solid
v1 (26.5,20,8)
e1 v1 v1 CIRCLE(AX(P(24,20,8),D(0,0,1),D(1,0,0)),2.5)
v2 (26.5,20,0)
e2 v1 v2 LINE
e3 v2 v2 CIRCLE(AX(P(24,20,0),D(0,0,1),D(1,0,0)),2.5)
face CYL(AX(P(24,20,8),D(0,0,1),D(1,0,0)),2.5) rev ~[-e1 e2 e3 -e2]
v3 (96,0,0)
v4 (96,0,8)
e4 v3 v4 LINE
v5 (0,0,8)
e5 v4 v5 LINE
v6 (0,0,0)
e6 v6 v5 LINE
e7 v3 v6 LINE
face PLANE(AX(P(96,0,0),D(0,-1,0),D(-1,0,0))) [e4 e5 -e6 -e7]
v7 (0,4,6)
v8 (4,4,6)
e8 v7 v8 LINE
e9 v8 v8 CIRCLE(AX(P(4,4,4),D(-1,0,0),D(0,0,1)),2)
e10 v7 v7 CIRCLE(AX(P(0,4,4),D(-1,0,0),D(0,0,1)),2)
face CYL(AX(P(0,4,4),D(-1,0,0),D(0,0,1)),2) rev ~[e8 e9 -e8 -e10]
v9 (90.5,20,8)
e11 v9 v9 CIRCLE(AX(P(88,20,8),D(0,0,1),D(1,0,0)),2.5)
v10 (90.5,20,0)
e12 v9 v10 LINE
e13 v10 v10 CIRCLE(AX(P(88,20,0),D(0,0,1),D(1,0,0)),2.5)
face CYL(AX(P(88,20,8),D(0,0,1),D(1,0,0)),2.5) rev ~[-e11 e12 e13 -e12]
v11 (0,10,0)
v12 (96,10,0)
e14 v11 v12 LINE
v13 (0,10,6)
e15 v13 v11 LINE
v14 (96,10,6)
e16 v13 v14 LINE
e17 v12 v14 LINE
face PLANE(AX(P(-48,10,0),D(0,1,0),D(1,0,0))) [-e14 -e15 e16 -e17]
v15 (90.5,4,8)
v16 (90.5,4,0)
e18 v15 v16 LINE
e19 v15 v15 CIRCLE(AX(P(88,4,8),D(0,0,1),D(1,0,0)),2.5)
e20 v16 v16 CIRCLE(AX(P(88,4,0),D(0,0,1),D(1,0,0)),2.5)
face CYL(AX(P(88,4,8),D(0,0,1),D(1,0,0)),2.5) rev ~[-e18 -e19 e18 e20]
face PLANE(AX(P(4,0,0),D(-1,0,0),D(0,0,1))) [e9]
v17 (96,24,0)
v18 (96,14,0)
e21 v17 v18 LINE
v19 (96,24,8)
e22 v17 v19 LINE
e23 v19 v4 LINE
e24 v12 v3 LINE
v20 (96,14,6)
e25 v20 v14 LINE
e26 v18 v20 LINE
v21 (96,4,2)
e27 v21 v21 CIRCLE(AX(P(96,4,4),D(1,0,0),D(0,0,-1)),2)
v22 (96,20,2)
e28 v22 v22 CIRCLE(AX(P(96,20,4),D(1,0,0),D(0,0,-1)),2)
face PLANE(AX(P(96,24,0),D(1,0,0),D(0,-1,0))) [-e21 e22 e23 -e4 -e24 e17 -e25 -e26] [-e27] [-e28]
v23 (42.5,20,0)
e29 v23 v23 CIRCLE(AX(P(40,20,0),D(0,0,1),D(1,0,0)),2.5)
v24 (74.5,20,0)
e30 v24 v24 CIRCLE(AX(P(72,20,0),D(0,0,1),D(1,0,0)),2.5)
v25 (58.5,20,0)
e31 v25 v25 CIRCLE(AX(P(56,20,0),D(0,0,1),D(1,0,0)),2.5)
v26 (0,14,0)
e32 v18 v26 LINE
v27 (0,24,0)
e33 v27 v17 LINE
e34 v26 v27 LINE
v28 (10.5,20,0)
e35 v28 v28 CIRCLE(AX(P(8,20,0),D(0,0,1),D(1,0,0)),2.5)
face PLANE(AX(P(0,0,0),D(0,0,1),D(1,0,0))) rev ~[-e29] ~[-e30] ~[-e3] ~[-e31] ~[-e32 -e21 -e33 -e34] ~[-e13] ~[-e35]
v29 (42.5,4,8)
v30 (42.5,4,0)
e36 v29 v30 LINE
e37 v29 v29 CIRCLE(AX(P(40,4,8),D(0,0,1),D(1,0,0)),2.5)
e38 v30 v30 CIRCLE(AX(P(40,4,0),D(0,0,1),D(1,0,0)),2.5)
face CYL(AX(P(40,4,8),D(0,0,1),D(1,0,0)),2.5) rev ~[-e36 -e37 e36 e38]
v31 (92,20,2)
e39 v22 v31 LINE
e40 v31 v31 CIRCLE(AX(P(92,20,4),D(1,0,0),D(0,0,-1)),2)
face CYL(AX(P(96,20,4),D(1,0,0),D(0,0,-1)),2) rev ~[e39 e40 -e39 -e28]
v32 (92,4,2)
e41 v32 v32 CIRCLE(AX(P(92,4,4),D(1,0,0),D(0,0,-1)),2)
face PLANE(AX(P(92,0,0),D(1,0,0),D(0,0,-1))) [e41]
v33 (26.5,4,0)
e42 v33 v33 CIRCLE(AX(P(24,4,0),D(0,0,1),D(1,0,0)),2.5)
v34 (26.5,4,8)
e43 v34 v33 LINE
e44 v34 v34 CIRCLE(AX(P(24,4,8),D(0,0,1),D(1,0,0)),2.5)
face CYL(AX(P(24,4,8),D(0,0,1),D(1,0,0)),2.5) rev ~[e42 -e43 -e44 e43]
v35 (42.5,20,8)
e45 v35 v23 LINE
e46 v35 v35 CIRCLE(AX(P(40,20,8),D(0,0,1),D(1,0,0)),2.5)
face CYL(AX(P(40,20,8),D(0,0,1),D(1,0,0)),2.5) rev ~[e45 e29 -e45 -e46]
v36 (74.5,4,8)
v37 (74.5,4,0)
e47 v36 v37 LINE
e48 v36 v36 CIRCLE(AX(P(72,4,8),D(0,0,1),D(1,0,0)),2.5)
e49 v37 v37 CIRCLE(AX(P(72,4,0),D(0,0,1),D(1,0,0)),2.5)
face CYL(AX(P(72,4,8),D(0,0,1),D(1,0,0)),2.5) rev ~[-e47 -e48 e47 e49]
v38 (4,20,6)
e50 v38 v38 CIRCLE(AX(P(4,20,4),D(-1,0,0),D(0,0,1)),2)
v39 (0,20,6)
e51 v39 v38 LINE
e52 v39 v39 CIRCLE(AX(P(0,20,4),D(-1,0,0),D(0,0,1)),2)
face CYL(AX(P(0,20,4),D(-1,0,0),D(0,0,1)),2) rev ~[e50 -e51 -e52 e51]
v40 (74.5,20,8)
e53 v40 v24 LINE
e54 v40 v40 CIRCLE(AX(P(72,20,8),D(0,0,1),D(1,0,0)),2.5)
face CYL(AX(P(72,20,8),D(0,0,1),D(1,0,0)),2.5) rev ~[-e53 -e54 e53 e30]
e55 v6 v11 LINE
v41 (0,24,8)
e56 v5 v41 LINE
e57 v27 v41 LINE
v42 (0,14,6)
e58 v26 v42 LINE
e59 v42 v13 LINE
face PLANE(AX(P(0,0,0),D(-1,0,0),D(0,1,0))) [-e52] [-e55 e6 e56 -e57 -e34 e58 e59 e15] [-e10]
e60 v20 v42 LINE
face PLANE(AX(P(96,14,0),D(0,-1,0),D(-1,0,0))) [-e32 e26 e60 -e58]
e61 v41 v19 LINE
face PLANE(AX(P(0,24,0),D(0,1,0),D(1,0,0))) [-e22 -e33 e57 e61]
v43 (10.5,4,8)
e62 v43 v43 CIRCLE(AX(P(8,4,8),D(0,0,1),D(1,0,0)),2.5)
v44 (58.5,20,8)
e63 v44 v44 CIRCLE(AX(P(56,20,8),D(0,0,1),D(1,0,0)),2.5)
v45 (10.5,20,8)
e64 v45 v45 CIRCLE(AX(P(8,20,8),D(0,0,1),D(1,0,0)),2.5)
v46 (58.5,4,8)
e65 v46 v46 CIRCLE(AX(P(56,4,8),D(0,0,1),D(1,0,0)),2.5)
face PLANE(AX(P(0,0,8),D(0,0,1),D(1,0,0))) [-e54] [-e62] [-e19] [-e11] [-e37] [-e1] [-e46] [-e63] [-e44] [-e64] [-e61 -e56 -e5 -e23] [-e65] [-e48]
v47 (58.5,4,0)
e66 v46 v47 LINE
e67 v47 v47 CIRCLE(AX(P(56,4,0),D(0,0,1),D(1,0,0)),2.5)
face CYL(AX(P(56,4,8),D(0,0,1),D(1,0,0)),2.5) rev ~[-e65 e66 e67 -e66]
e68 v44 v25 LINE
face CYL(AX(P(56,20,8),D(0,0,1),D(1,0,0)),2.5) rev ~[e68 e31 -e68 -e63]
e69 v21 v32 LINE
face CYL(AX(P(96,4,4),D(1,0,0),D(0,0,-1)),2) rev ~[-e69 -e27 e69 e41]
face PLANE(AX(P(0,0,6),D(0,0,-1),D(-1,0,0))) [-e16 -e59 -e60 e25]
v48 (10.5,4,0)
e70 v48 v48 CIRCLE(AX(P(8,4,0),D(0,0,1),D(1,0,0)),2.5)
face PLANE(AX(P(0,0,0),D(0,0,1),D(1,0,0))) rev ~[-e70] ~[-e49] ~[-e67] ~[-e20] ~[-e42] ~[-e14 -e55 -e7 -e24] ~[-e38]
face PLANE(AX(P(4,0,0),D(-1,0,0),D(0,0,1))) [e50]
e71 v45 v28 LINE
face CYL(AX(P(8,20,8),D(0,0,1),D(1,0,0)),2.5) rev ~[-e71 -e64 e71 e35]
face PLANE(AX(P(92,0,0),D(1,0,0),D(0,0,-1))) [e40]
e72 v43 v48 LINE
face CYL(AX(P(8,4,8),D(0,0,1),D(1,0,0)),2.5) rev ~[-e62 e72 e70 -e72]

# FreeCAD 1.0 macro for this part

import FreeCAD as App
import Part
import Sketcher


def add_polygon(sketch, points):
    """Adds a closed chain of lines whose ends are joined by coincident constraints."""
    first, n = sketch.GeometryCount, len(points)
    for a, b in zip(points, points[1:] + points[:1]):
        sketch.addGeometry(Part.LineSegment(App.Vector(*a, 0), App.Vector(*b, 0)), False)
    for i in range(n):
        sketch.addConstraint(Sketcher.Constraint("Coincident", first + i, 2, first + (i + 1) % n, 1))

doc = App.newDocument("Part")
body = doc.addObject("PartDesign::Body", "Body")

sketch1 = doc.addObject("Sketcher::SketchObject", "Sketch")
body.addObject(sketch1)
sketch1.AttachmentSupport = (doc.XY_Plane, [""])
sketch1.MapMode = "FlatFace"
add_polygon(sketch1, [(0, 0), (96, 0), (96, 24), (0, 24)])
sketch1.addConstraint([
    Sketcher.Constraint("Horizontal", 0),
    Sketcher.Constraint("Vertical", 1),
    Sketcher.Constraint("Horizontal", 2),
    Sketcher.Constraint("Vertical", 3),
    Sketcher.Constraint("Coincident", 3, 2, -1, 1),
    Sketcher.Constraint("DistanceX", 0, 1, 0, 2, 96.0),
    Sketcher.Constraint("DistanceY", 1, 1, 1, 2, 24.0),
])
pad1 = doc.addObject("PartDesign::Pad", "Pad")
body.addObject(pad1)
pad1.Profile = sketch1
pad1.Length = 8

sketch2 = doc.addObject("Sketcher::SketchObject", "Sketch001")
body.addObject(sketch2)
sketch2.AttachmentSupport = (doc.XY_Plane, [""])
sketch2.MapMode = "FlatFace"
sketch2.AttachmentOffset = App.Placement(App.Vector(0, 0, 8), App.Rotation())
sketch2.addGeometry([
    Part.Circle(App.Vector(88, 20, 0), App.Vector(0, 0, 1), 2.5),
    Part.Circle(App.Vector(72, 20, 0), App.Vector(0, 0, 1), 2.5),
    Part.Circle(App.Vector(56, 20, 0), App.Vector(0, 0, 1), 2.5),
    Part.Circle(App.Vector(40, 20, 0), App.Vector(0, 0, 1), 2.5),
    Part.Circle(App.Vector(24, 20, 0), App.Vector(0, 0, 1), 2.5),
    Part.Circle(App.Vector(8, 20, 0), App.Vector(0, 0, 1), 2.5),
    Part.Circle(App.Vector(88, 4, 0), App.Vector(0, 0, 1), 2.5),
    Part.Circle(App.Vector(72, 4, 0), App.Vector(0, 0, 1), 2.5),
    Part.Circle(App.Vector(56, 4, 0), App.Vector(0, 0, 1), 2.5),
    Part.Circle(App.Vector(40, 4, 0), App.Vector(0, 0, 1), 2.5),
    Part.Circle(App.Vector(24, 4, 0), App.Vector(0, 0, 1), 2.5),
    Part.Circle(App.Vector(8, 4, 0), App.Vector(0, 0, 1), 2.5),
], False)
sketch2.addConstraint([
    Sketcher.Constraint("Equal", 0, 1),
    Sketcher.Constraint("Equal", 1, 2),
    Sketcher.Constraint("Equal", 2, 3),
    Sketcher.Constraint("Equal", 3, 4),
    Sketcher.Constraint("Equal", 4, 5),
    Sketcher.Constraint("Equal", 5, 6),
    Sketcher.Constraint("Equal", 6, 7),
    Sketcher.Constraint("Equal", 7, 8),
    Sketcher.Constraint("Equal", 8, 9),
    Sketcher.Constraint("Equal", 9, 10),
    Sketcher.Constraint("Equal", 10, 11),
    Sketcher.Constraint("Horizontal", 0, 3, 1, 3),
    Sketcher.Constraint("Horizontal", 1, 3, 2, 3),
    Sketcher.Constraint("Horizontal", 2, 3, 3, 3),
    Sketcher.Constraint("Horizontal", 3, 3, 4, 3),
    Sketcher.Constraint("Horizontal", 4, 3, 5, 3),
    Sketcher.Constraint("Horizontal", 6, 3, 7, 3),
    Sketcher.Constraint("Horizontal", 7, 3, 8, 3),
    Sketcher.Constraint("Horizontal", 8, 3, 9, 3),
    Sketcher.Constraint("Horizontal", 9, 3, 10, 3),
    Sketcher.Constraint("Horizontal", 10, 3, 11, 3),
    Sketcher.Constraint("Vertical", 0, 3, 6, 3),
    Sketcher.Constraint("Vertical", 1, 3, 7, 3),
    Sketcher.Constraint("Vertical", 2, 3, 8, 3),
    Sketcher.Constraint("Vertical", 3, 3, 9, 3),
    Sketcher.Constraint("Vertical", 4, 3, 10, 3),
    Sketcher.Constraint("Vertical", 5, 3, 11, 3),
    Sketcher.Constraint("Diameter", 0, 5.0),
    Sketcher.Constraint("DistanceX", -1, 1, 5, 3, 8.0),
    Sketcher.Constraint("DistanceY", -1, 1, 6, 3, 4.0),
    Sketcher.Constraint("DistanceX", 1, 3, 0, 3, 16.0),
    Sketcher.Constraint("DistanceX", 2, 3, 1, 3, 16.0),
    Sketcher.Constraint("DistanceX", 3, 3, 2, 3, 16.0),
    Sketcher.Constraint("DistanceX", 4, 3, 3, 3, 16.0),
    Sketcher.Constraint("DistanceX", 5, 3, 4, 3, 16.0),
    Sketcher.Constraint("DistanceY", 6, 3, 0, 3, 16.0),
])
pocket1 = doc.addObject("PartDesign::Pocket", "Pocket")
body.addObject(pocket1)
pocket1.Profile = sketch2
pocket1.Type = "ThroughAll"

sketch3 = doc.addObject("Sketcher::SketchObject", "Sketch002")
body.addObject(sketch3)
sketch3.AttachmentSupport = (doc.YZ_Plane, [""])
sketch3.MapMode = "FlatFace"
sketch3.AttachmentOffset = App.Placement(App.Vector(0, 0, 96), App.Rotation())
sketch3.addGeometry([
    Part.Circle(App.Vector(20, 4, 0), App.Vector(0, 0, 1), 2),
    Part.Circle(App.Vector(4, 4, 0), App.Vector(0, 0, 1), 2),
], False)
sketch3.addConstraint([
    Sketcher.Constraint("Equal", 0, 1),
    Sketcher.Constraint("Horizontal", 0, 3, 1, 3),
    Sketcher.Constraint("Diameter", 0, 4.0),
    Sketcher.Constraint("DistanceY", -1, 1, 0, 3, 4.0),
    Sketcher.Constraint("DistanceX", -1, 1, 1, 3, 4.0),
    Sketcher.Constraint("DistanceX", -1, 1, 0, 3, 20.0),
])
pocket2 = doc.addObject("PartDesign::Pocket", "Pocket001")
body.addObject(pocket2)
pocket2.Profile = sketch3
pocket2.Length = 4

sketch4 = doc.addObject("Sketcher::SketchObject", "Sketch003")
body.addObject(sketch4)
sketch4.AttachmentSupport = (doc.YZ_Plane, [""])
sketch4.MapMode = "FlatFace"
sketch4.addGeometry([
    Part.Circle(App.Vector(20, 4, 0), App.Vector(0, 0, 1), 2),
    Part.Circle(App.Vector(4, 4, 0), App.Vector(0, 0, 1), 2),
], False)
sketch4.addConstraint([
    Sketcher.Constraint("Equal", 0, 1),
    Sketcher.Constraint("Horizontal", 0, 3, 1, 3),
    Sketcher.Constraint("Diameter", 0, 4.0),
    Sketcher.Constraint("DistanceY", -1, 1, 0, 3, 4.0),
    Sketcher.Constraint("DistanceX", -1, 1, 1, 3, 4.0),
    Sketcher.Constraint("DistanceX", -1, 1, 0, 3, 20.0),
])
pocket3 = doc.addObject("PartDesign::Pocket", "Pocket002")
body.addObject(pocket3)
pocket3.Profile = sketch4
pocket3.Length = 4
pocket3.Reversed = True

sketch5 = doc.addObject("Sketcher::SketchObject", "Sketch004")
body.addObject(sketch5)
sketch5.AttachmentSupport = (doc.XY_Plane, [""])
sketch5.MapMode = "FlatFace"
add_polygon(sketch5, [(-48, 14), (96, 14), (96, 10), (-48, 10)])
sketch5.addConstraint([
    Sketcher.Constraint("Horizontal", 0),
    Sketcher.Constraint("Vertical", 1),
    Sketcher.Constraint("Horizontal", 2),
    Sketcher.Constraint("Vertical", 3),
    Sketcher.Constraint("DistanceX", 0, 1, 0, 2, 144.0),
    Sketcher.Constraint("DistanceY", -1, 1, 1, 2, 10.0),
    Sketcher.Constraint("DistanceY", 1, 2, 1, 1, 4.0),
    Sketcher.Constraint("DistanceX", -1, 1, 0, 2, 96.0),
])
pocket4 = doc.addObject("PartDesign::Pocket", "Pocket003")
body.addObject(pocket4)
pocket4.Profile = sketch5
pocket4.Length = 6
pocket4.Reversed = True

doc.recompute()
